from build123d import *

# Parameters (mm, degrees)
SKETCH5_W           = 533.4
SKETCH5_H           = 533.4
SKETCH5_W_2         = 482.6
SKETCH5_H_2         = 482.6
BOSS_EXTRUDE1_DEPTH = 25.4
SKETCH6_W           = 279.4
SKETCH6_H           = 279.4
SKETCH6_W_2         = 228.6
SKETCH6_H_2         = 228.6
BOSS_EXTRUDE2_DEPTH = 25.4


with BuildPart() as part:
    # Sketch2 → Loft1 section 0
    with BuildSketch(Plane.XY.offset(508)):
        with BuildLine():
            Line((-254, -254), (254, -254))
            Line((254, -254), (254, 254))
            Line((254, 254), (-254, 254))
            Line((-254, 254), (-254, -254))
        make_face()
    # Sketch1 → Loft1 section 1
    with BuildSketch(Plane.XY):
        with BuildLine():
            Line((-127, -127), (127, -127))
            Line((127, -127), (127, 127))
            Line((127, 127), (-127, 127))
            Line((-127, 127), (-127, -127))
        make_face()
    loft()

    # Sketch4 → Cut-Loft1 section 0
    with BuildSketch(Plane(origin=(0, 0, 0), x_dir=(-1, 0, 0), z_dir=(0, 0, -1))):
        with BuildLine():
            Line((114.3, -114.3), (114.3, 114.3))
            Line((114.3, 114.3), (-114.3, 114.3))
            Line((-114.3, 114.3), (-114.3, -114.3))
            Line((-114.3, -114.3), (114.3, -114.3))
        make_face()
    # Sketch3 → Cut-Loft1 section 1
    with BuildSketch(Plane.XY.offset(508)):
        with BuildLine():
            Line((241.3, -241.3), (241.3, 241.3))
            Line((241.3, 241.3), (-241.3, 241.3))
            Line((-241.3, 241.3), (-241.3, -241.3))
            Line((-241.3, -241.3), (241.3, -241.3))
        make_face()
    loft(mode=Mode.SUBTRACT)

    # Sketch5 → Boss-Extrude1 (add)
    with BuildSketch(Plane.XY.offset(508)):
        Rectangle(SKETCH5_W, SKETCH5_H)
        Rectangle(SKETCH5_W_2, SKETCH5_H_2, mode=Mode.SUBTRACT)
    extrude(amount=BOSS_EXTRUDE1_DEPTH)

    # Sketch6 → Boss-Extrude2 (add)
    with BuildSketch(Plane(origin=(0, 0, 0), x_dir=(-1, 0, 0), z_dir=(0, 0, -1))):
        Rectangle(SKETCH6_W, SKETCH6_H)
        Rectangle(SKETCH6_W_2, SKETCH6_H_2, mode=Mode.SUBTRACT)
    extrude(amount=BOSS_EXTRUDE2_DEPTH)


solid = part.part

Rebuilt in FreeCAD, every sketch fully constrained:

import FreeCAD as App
import Part
import Sketcher
Q = App.Units.Quantity


def add_polygon(sketch, points):
    """Adds a closed chain of lines whose ends are joined by coincident constraints."""
    first, n = sketch.GeometryCount, len(points)
    for a, b in zip(points, points[1:] + points[:1]):
        sketch.addGeometry(Part.LineSegment(App.Vector(*a, 0), App.Vector(*b, 0)), False)
    for i in range(n):
        sketch.addConstraint(Sketcher.Constraint("Coincident", first + i, 2, first + (i + 1) % n, 1))

doc = App.newDocument("Part")
body = doc.addObject("PartDesign::Body", "Body")

# Sketch on XY plane
sketch1 = doc.addObject("Sketcher::SketchObject", "Sketch")
body.addObject(sketch1)
sketch1.AttachmentSupport = (doc.XY_Plane, [""])
sketch1.MapMode = "FlatFace"
sketch1.AttachmentOffset = App.Placement(App.Vector(0, 0, 20 * 25.4), App.Rotation())
add_polygon(sketch1, [(-254, -254), (254, -254), (254, 254), (-254, 254)])  # lines 0-3
sketch1.addConstraint([
    Sketcher.Constraint("Horizontal", 0),
    Sketcher.Constraint("Vertical", 1),
    Sketcher.Constraint("Horizontal", 2),
    Sketcher.Constraint("Vertical", 3),
    Sketcher.Constraint("Symmetric", 0, 2, 2, 2, -1, 1),
    Sketcher.Constraint("Equal", 2, 1),
    Sketcher.Constraint("DistanceX", 0, 1, 0, 2, Q("20 in")),
])

# Sketch on XY plane
sketch2 = doc.addObject("Sketcher::SketchObject", "Sketch001")
body.addObject(sketch2)
sketch2.AttachmentSupport = (doc.XY_Plane, [""])
sketch2.MapMode = "FlatFace"
add_polygon(sketch2, [(-127, -127), (127, -127), (127, 127), (-127, 127)])  # lines 0-3
sketch2.addConstraint([
    Sketcher.Constraint("Horizontal", 0),
    Sketcher.Constraint("Vertical", 1),
    Sketcher.Constraint("Horizontal", 2),
    Sketcher.Constraint("Vertical", 3),
    Sketcher.Constraint("Symmetric", 0, 2, 2, 2, -1, 1),
    Sketcher.Constraint("Equal", 2, 1),
    Sketcher.Constraint("DistanceX", 0, 1, 0, 2, Q("10 in")),
])

additiveloft = doc.addObject("PartDesign::AdditiveLoft", "AdditiveLoft")
body.addObject(additiveloft)
additiveloft.Profile = sketch1
additiveloft.Sections = [sketch2]

# Sketch on XY plane
sketch3 = doc.addObject("Sketcher::SketchObject", "Sketch002")
body.addObject(sketch3)
sketch3.AttachmentSupport = (doc.XY_Plane, [""])
sketch3.MapMode = "FlatFace"
add_polygon(sketch3, [(-114, -114), (-114, 114), (114, 114), (114, -114)])  # lines 0-3
sketch3.addConstraint([
    Sketcher.Constraint("Vertical", 0),
    Sketcher.Constraint("Horizontal", 1),
    Sketcher.Constraint("Vertical", 2),
    Sketcher.Constraint("Horizontal", 3),
    Sketcher.Constraint("Symmetric", 0, 2, 2, 2, -1, 1),
    Sketcher.Constraint("Equal", 3, 0),
    Sketcher.Constraint("DistanceX", 1, 1, 1, 2, Q("9 in")),
])

# Sketch on XY plane
sketch4 = doc.addObject("Sketcher::SketchObject", "Sketch003")
body.addObject(sketch4)
sketch4.AttachmentSupport = (doc.XY_Plane, [""])
sketch4.MapMode = "FlatFace"
sketch4.AttachmentOffset = App.Placement(App.Vector(0, 0, 20 * 25.4), App.Rotation())
add_polygon(sketch4, [(241, -241), (241, 241), (-241, 241), (-241, -241)])  # lines 0-3
sketch4.addConstraint([
    Sketcher.Constraint("Vertical", 0),
    Sketcher.Constraint("Horizontal", 1),
    Sketcher.Constraint("Vertical", 2),
    Sketcher.Constraint("Horizontal", 3),
    Sketcher.Constraint("Symmetric", 0, 2, 2, 2, -1, 1),
    Sketcher.Constraint("Equal", 3, 0),
    Sketcher.Constraint("DistanceX", 1, 2, 1, 1, Q("19 in")),
])

subtractiveloft = doc.addObject("PartDesign::SubtractiveLoft", "SubtractiveLoft")
body.addObject(subtractiveloft)
subtractiveloft.Profile = sketch3
subtractiveloft.Sections = [sketch4]

# Sketch on XY plane
sketch5 = doc.addObject("Sketcher::SketchObject", "Sketch004")
body.addObject(sketch5)
sketch5.AttachmentSupport = (doc.XY_Plane, [""])
sketch5.MapMode = "FlatFace"
sketch5.AttachmentOffset = App.Placement(App.Vector(0, 0, 20 * 25.4), App.Rotation())
add_polygon(sketch5, [(-267, 267), (-267, -267), (267, -267), (267, 267)])  # lines 0-3
add_polygon(sketch5, [(241, -241), (-241, -241), (-241, 241), (241, 241)])  # lines 4-7
sketch5.addConstraint([
    Sketcher.Constraint("Vertical", 0),
    Sketcher.Constraint("Horizontal", 1),
    Sketcher.Constraint("Vertical", 2),
    Sketcher.Constraint("Horizontal", 3),
    Sketcher.Constraint("Horizontal", 4),
    Sketcher.Constraint("Vertical", 5),
    Sketcher.Constraint("Horizontal", 6),
    Sketcher.Constraint("Vertical", 7),
    Sketcher.Constraint("Symmetric", 0, 2, 2, 2, -1, 1),
    Sketcher.Constraint("Symmetric", 4, 2, 6, 2, -1, 1),
    Sketcher.Constraint("Equal", 3, 0),
    Sketcher.Constraint("Equal", 6, 5),
    Sketcher.Constraint("DistanceX", 1, 1, 1, 2, Q("21 in")),
    Sketcher.Constraint("DistanceX", 4, 2, 4, 1, Q("19 in")),
])
pad1 = doc.addObject("PartDesign::Pad", "Pad")
body.addObject(pad1)
pad1.Profile = sketch5
pad1.Length = Q("1 in")

# Sketch on XY plane
sketch6 = doc.addObject("Sketcher::SketchObject", "Sketch005")
body.addObject(sketch6)
sketch6.AttachmentSupport = (doc.XY_Plane, [""])
sketch6.MapMode = "FlatFace"
add_polygon(sketch6, [(140, 140), (140, -140), (-140, -140), (-140, 140)])  # lines 0-3
add_polygon(sketch6, [(-114, -114), (114, -114), (114, 114), (-114, 114)])  # lines 4-7
sketch6.addConstraint([
    Sketcher.Constraint("Vertical", 0),
    Sketcher.Constraint("Horizontal", 1),
    Sketcher.Constraint("Vertical", 2),
    Sketcher.Constraint("Horizontal", 3),
    Sketcher.Constraint("Horizontal", 4),
    Sketcher.Constraint("Vertical", 5),
    Sketcher.Constraint("Horizontal", 6),
    Sketcher.Constraint("Vertical", 7),
    Sketcher.Constraint("Symmetric", 0, 2, 2, 2, -1, 1),
    Sketcher.Constraint("Symmetric", 4, 2, 6, 2, -1, 1),
    Sketcher.Constraint("Equal", 3, 0),
    Sketcher.Constraint("Equal", 6, 5),
    Sketcher.Constraint("DistanceX", 1, 2, 1, 1, Q("11 in")),
    Sketcher.Constraint("DistanceX", 4, 1, 4, 2, Q("9 in")),
])
pad2 = doc.addObject("PartDesign::Pad", "Pad001")
body.addObject(pad2)
pad2.Profile = sketch6
pad2.Length = Q("1 in")
pad2.Reversed = True

doc.recompute()
